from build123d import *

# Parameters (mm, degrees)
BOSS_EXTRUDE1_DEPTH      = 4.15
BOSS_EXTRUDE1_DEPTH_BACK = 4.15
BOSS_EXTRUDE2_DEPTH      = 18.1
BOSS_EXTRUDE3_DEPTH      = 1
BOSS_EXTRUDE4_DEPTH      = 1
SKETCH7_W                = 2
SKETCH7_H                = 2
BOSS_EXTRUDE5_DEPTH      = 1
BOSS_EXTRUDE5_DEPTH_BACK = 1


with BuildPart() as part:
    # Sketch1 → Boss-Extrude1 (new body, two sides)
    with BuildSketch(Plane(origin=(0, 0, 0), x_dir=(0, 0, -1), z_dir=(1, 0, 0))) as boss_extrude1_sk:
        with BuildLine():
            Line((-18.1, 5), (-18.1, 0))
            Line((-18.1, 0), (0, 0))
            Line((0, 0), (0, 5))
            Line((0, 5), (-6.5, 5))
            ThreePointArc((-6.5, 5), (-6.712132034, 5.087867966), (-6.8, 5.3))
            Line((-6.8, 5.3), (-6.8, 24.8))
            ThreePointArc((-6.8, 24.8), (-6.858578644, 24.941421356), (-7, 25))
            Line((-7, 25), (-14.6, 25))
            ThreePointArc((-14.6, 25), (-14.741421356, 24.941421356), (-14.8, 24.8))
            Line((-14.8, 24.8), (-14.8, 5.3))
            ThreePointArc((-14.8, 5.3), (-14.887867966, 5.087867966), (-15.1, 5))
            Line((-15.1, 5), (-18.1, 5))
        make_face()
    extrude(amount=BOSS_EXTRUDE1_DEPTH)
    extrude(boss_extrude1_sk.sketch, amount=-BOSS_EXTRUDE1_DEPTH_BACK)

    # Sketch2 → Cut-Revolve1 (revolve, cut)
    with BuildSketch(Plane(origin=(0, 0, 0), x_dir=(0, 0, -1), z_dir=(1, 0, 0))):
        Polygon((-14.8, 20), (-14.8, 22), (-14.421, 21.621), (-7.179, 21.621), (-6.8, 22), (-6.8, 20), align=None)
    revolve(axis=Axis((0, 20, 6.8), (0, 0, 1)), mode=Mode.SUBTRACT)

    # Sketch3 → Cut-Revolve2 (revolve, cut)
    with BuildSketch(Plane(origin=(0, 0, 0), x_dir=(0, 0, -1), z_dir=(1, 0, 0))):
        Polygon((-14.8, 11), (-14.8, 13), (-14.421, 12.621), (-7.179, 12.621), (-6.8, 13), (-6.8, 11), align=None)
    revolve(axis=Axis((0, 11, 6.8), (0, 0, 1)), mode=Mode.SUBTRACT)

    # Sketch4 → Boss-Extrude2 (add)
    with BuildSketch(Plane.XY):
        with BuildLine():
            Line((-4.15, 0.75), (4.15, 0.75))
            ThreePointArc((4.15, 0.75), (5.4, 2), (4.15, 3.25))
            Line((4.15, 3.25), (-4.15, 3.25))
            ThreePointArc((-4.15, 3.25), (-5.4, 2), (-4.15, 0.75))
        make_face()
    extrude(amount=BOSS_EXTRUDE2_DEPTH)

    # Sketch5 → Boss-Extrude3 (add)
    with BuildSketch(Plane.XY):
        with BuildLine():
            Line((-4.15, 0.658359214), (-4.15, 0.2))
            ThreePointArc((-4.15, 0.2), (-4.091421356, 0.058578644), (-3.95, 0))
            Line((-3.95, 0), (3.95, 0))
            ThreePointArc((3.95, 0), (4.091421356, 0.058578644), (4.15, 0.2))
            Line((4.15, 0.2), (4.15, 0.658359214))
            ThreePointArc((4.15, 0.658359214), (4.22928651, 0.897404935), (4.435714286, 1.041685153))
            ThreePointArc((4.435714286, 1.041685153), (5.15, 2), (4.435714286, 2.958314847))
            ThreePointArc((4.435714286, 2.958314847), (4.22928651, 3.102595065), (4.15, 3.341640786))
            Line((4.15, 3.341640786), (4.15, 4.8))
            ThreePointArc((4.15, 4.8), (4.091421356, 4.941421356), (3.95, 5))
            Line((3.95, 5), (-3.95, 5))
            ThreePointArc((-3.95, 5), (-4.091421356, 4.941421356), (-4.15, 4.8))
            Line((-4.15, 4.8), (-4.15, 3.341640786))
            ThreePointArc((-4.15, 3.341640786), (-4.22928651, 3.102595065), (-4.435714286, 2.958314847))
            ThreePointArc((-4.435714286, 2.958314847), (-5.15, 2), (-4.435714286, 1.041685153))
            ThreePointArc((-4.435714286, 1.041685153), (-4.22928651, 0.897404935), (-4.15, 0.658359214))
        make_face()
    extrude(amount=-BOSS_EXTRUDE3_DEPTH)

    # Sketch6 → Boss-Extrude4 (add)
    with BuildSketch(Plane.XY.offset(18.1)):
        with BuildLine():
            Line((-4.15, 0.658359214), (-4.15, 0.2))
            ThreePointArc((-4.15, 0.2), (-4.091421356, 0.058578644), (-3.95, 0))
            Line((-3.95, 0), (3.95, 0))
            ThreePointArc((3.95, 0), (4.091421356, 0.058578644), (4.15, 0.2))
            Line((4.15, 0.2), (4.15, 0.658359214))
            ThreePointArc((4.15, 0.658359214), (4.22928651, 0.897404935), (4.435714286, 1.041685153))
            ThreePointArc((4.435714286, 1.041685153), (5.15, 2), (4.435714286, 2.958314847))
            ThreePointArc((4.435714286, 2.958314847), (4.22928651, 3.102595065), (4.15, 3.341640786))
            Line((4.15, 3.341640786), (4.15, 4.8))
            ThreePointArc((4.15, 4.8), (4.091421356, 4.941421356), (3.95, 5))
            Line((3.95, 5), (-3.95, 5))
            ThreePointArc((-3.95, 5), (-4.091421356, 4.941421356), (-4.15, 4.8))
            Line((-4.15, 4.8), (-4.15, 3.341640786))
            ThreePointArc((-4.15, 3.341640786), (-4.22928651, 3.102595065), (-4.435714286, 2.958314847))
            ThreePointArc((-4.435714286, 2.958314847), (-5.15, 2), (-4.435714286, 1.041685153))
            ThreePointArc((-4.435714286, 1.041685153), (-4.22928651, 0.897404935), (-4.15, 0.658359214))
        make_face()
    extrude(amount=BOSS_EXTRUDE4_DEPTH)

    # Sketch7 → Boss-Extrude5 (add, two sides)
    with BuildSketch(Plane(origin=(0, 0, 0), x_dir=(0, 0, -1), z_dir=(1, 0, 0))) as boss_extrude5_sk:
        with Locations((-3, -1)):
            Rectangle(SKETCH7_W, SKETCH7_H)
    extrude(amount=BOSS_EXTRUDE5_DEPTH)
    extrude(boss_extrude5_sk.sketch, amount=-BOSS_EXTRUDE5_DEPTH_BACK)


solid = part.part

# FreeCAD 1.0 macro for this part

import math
import FreeCAD as App
import Part
import Sketcher


def add_polygon(sketch, points):
    """Adds a closed chain of lines whose ends are joined by coincident constraints."""
    first, n = sketch.GeometryCount, len(points)
    for a, b in zip(points, points[1:] + points[:1]):
        sketch.addGeometry(Part.LineSegment(App.Vector(*a, 0), App.Vector(*b, 0)), False)
    for i in range(n):
        sketch.addConstraint(Sketcher.Constraint("Coincident", first + i, 2, first + (i + 1) % n, 1))

doc = App.newDocument("Part")
params = doc.addObject("Spreadsheet::Sheet", "Params")
for row, (alias, value) in enumerate([
    ("sketch1_radius", "0.3 mm"),
    ("sketch1_radius2", "0.2 mm"),
    ("sketch1_width", "5 mm"),
    ("sketch1_height", "3 mm"),
    ("sketch1_width2", "19.5 mm"),
    ("pad1_length", "4.15 mm"),
    ("pad1_length2", "4.15 mm"),
    ("sketch2_width", "2 mm"),
    ("sketch2_height", "8 mm"),
    ("groove_angle", "360 deg"),
    ("sketch3_width", "2 mm"),
    ("sketch3_height", "8 mm"),
    ("groove2_angle", "360 deg"),
    ("sketch4_radius", "1.25 mm"),
    ("sketch4_width", "8.3 mm"),
    ("pad2_length", "18.1 mm"),
    ("sketch5_radius", "1 mm"),
    ("sketch5_radius2", "0.2 mm"),
    ("sketch5_radius3", "0.4 mm"),
    ("sketch5_width", "7.9 mm"),
    ("pad3_length", "1 mm"),
    ("sketch6_radius", "1 mm"),
    ("sketch6_radius2", "0.2 mm"),
    ("sketch6_radius3", "0.4 mm"),
    ("sketch6_width", "7.9 mm"),
    ("pad4_length", "1 mm"),
    ("sketch7_width", "2 mm"),
    ("pad5_length", "1 mm"),
    ("pad5_length2", "1 mm"),
], start=1):
    params.set(f"A{row}", alias)
    params.set(f"B{row}", "=" + value)
    params.setAlias(f"B{row}", alias)

body = doc.addObject("PartDesign::Body", "Body")

sketch1 = body.newObject("Sketcher::SketchObject", "Sketch")
sketch1.AttachmentSupport = (doc.getObject("YZ_Plane"), [""])
sketch1.MapMode = "FlatFace"
sketch1.addGeometry(Part.LineSegment(App.Vector(5, 18.1, 0), App.Vector(0, 18.1, 0)), False)
sketch1.addGeometry(Part.LineSegment(App.Vector(0, 18.1, 0), App.Vector(0, 0, 0)), False)
sketch1.addGeometry(Part.LineSegment(App.Vector(0, 0, 0), App.Vector(5, 0, 0)), False)
sketch1.addGeometry(Part.LineSegment(App.Vector(5, 0, 0), App.Vector(5, 6.5, 0)), False)
sketch1.addGeometry(Part.ArcOfCircle(Part.Circle(App.Vector(5.3, 6.5, 0), App.Vector(0, 0, 1), 0.3), math.radians(90), math.radians(180)), False)
sketch1.addGeometry(Part.LineSegment(App.Vector(5.3, 6.8, 0), App.Vector(24.8, 6.8, 0)), False)
sketch1.addGeometry(Part.ArcOfCircle(Part.Circle(App.Vector(24.8, 7, 0), App.Vector(0, 0, 1), 0.2), math.radians(-90), math.radians(0)), False)
sketch1.addGeometry(Part.LineSegment(App.Vector(25, 7, 0), App.Vector(25, 14.6, 0)), False)
sketch1.addGeometry(Part.ArcOfCircle(Part.Circle(App.Vector(24.8, 14.6, 0), App.Vector(0, 0, 1), 0.2), math.radians(0), math.radians(90)), False)
sketch1.addGeometry(Part.LineSegment(App.Vector(24.8, 14.8, 0), App.Vector(5.3, 14.8, 0)), False)
sketch1.addGeometry(Part.ArcOfCircle(Part.Circle(App.Vector(5.3, 15.1, 0), App.Vector(0, 0, 1), 0.3), math.radians(-180), math.radians(-90)), False)
sketch1.addGeometry(Part.LineSegment(App.Vector(5, 15.1, 0), App.Vector(5, 18.1, 0)), False)
sketch1.addConstraint(Sketcher.Constraint("Coincident", 0, 2, 1, 1))
sketch1.addConstraint(Sketcher.Constraint("Coincident", 1, 2, 2, 1))
sketch1.addConstraint(Sketcher.Constraint("Coincident", 2, 2, 3, 1))
sketch1.addConstraint(Sketcher.Constraint("Tangent", 3, 2, 4, 2))
sketch1.addConstraint(Sketcher.Constraint("Tangent", 4, 1, 5, 1))
sketch1.addConstraint(Sketcher.Constraint("Tangent", 5, 2, 6, 1))
sketch1.addConstraint(Sketcher.Constraint("Tangent", 6, 2, 7, 1))
sketch1.addConstraint(Sketcher.Constraint("Tangent", 7, 2, 8, 1))
sketch1.addConstraint(Sketcher.Constraint("Tangent", 8, 2, 9, 1))
sketch1.addConstraint(Sketcher.Constraint("Tangent", 9, 2, 10, 2))
sketch1.addConstraint(Sketcher.Constraint("Tangent", 10, 1, 11, 1))
sketch1.addConstraint(Sketcher.Constraint("Coincident", 11, 2, 0, 1))
sketch1.addConstraint(Sketcher.Constraint("Horizontal", 0))
sketch1.addConstraint(Sketcher.Constraint("Vertical", 1))
sketch1.addConstraint(Sketcher.Constraint("Horizontal", 2))
sketch1.addConstraint(Sketcher.Constraint("Vertical", 3))
sketch1.addConstraint(Sketcher.Constraint("Horizontal", 5))
sketch1.addConstraint(Sketcher.Constraint("Vertical", 7))
sketch1.addConstraint(Sketcher.Constraint("Horizontal", 9))
sketch1.addConstraint(Sketcher.Constraint("Vertical", 11))
sketch1.addConstraint(Sketcher.Constraint("Coincident", 1, 2, -1, 1))
sketch1.addConstraint(Sketcher.Constraint("Equal", 6, 8))
sketch1.addConstraint(Sketcher.Constraint("Equal", 4, 10))
sketch1.addConstraint(Sketcher.Constraint("Vertical", 4, 3, 10, 3))
sketch1.addConstraint(Sketcher.Constraint("Radius", 4, 0.3))
sketch1.addConstraint(Sketcher.Constraint("Radius", 6, 0.2))
sketch1.addConstraint(Sketcher.Constraint("DistanceX", 0, 2, 0, 1, 5.0))
sketch1.addConstraint(Sketcher.Constraint("DistanceY", 11, 1, 11, 2, 3.0))
sketch1.addConstraint(Sketcher.Constraint("DistanceX", 5, 1, 5, 2, 19.5))
sketch1.addConstraint(Sketcher.Constraint("DistanceY", 1, 2, 1, 1, 18.1))
sketch1.addConstraint(Sketcher.Constraint("DistanceY", 3, 1, 3, 2, 6.5))
sketch1.setExpression("Constraints[24]", "Params.sketch1_radius")
sketch1.setExpression("Constraints[25]", "Params.sketch1_radius2")
sketch1.setExpression("Constraints[26]", "Params.sketch1_width")
sketch1.setExpression("Constraints[27]", "Params.sketch1_height")
sketch1.setExpression("Constraints[28]", "Params.sketch1_width2")
pad1 = body.newObject("PartDesign::Pad", "Pad")
pad1.Profile = sketch1
pad1.Type = "TwoLengths"
pad1.setExpression("Length", "Params.pad1_length")
pad1.setExpression("Length2", "Params.pad1_length2")

sketch2 = body.newObject("Sketcher::SketchObject", "Sketch001")
sketch2.AttachmentSupport = (doc.getObject("YZ_Plane"), [""])
sketch2.MapMode = "FlatFace"
add_polygon(sketch2, [(22, 14.8), (20, 14.8), (20, 6.8), (22, 6.8), (21.621, 7.179), (21.621, 14.421)])
sketch2.addGeometry(Part.LineSegment(App.Vector(20, 6.8, 0), App.Vector(20, 14.8, 0)), True)
sketch2.addConstraint(Sketcher.Constraint("Horizontal", 0))
sketch2.addConstraint(Sketcher.Constraint("Vertical", 1))
sketch2.addConstraint(Sketcher.Constraint("Horizontal", 2))
sketch2.addConstraint(Sketcher.Constraint("Vertical", 4))
sketch2.addConstraint(Sketcher.Constraint("Vertical", 6))
sketch2.addConstraint(Sketcher.Constraint("Coincident", 6, 1, 1, 2))
sketch2.addConstraint(Sketcher.Constraint("Perpendicular", 3, 5))
sketch2.addConstraint(Sketcher.Constraint("Horizontal", 5, 2, 6, 2))
sketch2.addConstraint(Sketcher.Constraint("Vertical", 2, 2, 5, 2))
sketch2.addConstraint(Sketcher.Constraint("Equal", 3, 5))
sketch2.addConstraint(Sketcher.Constraint("DistanceX", 0, 2, 0, 1, 2.0))
sketch2.addConstraint(Sketcher.Constraint("DistanceY", 1, 2, 1, 1, 8.0))
sketch2.addConstraint(Sketcher.Constraint("DistanceX", -1, 1, 0, 2, 20.0))
sketch2.addConstraint(Sketcher.Constraint("DistanceY", -1, 1, 0, 2, 14.8))
sketch2.addConstraint(Sketcher.Constraint("DistanceY", 4, 1, 4, 2, 7.242))
sketch2.setExpression("Constraints[16]", "Params.sketch2_width")
sketch2.setExpression("Constraints[17]", "Params.sketch2_height")
groove = body.newObject("PartDesign::Groove", "Groove")
groove.Profile = sketch2
groove.ReferenceAxis = (sketch2, ["Axis0"])
groove.setExpression("Angle", "Params.groove_angle")

sketch3 = body.newObject("Sketcher::SketchObject", "Sketch002")
sketch3.AttachmentSupport = (doc.getObject("YZ_Plane"), [""])
sketch3.MapMode = "FlatFace"
add_polygon(sketch3, [(13, 14.8), (11, 14.8), (11, 6.8), (13, 6.8), (12.621, 7.179), (12.621, 14.421)])
sketch3.addGeometry(Part.LineSegment(App.Vector(11, 6.8, 0), App.Vector(11, 14.8, 0)), True)
sketch3.addConstraint(Sketcher.Constraint("Horizontal", 0))
sketch3.addConstraint(Sketcher.Constraint("Vertical", 1))
sketch3.addConstraint(Sketcher.Constraint("Horizontal", 2))
sketch3.addConstraint(Sketcher.Constraint("Vertical", 4))
sketch3.addConstraint(Sketcher.Constraint("Vertical", 6))
sketch3.addConstraint(Sketcher.Constraint("Coincident", 6, 1, 1, 2))
sketch3.addConstraint(Sketcher.Constraint("Perpendicular", 3, 5))
sketch3.addConstraint(Sketcher.Constraint("Horizontal", 5, 2, 6, 2))
sketch3.addConstraint(Sketcher.Constraint("Vertical", 2, 2, 5, 2))
sketch3.addConstraint(Sketcher.Constraint("Equal", 3, 5))
sketch3.addConstraint(Sketcher.Constraint("DistanceX", 0, 2, 0, 1, 2.0))
sketch3.addConstraint(Sketcher.Constraint("DistanceY", 1, 2, 1, 1, 8.0))
sketch3.addConstraint(Sketcher.Constraint("DistanceX", -1, 1, 0, 2, 11.0))
sketch3.addConstraint(Sketcher.Constraint("DistanceY", -1, 1, 0, 2, 14.8))
sketch3.addConstraint(Sketcher.Constraint("DistanceY", 4, 1, 4, 2, 7.242))
sketch3.setExpression("Constraints[16]", "Params.sketch3_width")
sketch3.setExpression("Constraints[17]", "Params.sketch3_height")
groove2 = body.newObject("PartDesign::Groove", "Groove001")
groove2.Profile = sketch3
groove2.ReferenceAxis = (sketch3, ["Axis0"])
groove2.setExpression("Angle", "Params.groove2_angle")

sketch4 = body.newObject("Sketcher::SketchObject", "Sketch003")
sketch4.AttachmentSupport = (doc.getObject("XY_Plane"), [""])
sketch4.MapMode = "FlatFace"
sketch4.addGeometry(Part.LineSegment(App.Vector(-4.15, 0.75, 0), App.Vector(4.15, 0.75, 0)), False)
sketch4.addGeometry(Part.ArcOfCircle(Part.Circle(App.Vector(4.15, 2, 0), App.Vector(0, 0, 1), 1.25), math.radians(-90), math.radians(90)), False)
sketch4.addGeometry(Part.LineSegment(App.Vector(4.15, 3.25, 0), App.Vector(-4.15, 3.25, 0)), False)
sketch4.addGeometry(Part.ArcOfCircle(Part.Circle(App.Vector(-4.15, 2, 0), App.Vector(0, 0, 1), 1.25), math.radians(90), math.radians(270)), False)
sketch4.addConstraint(Sketcher.Constraint("Tangent", 0, 2, 1, 1))
sketch4.addConstraint(Sketcher.Constraint("Tangent", 1, 2, 2, 1))
sketch4.addConstraint(Sketcher.Constraint("Tangent", 2, 2, 3, 1))
sketch4.addConstraint(Sketcher.Constraint("Tangent", 3, 2, 0, 1))
sketch4.addConstraint(Sketcher.Constraint("Horizontal", 0))
sketch4.addConstraint(Sketcher.Constraint("Horizontal", 2))
sketch4.addConstraint(Sketcher.Constraint("Radius", 1, 1.25))
sketch4.addConstraint(Sketcher.Constraint("DistanceX", 0, 1, 0, 2, 8.3))
sketch4.addConstraint(Sketcher.Constraint("DistanceY", -1, 1, 1, 3, 2.0))
sketch4.addConstraint(Sketcher.Constraint("DistanceX", -1, 1, 1, 3, 4.15))
sketch4.setExpression("Constraints[6]", "Params.sketch4_radius")
sketch4.setExpression("Constraints[7]", "Params.sketch4_width")
pad2 = body.newObject("PartDesign::Pad", "Pad001")
pad2.Profile = sketch4
pad2.setExpression("Length", "Params.pad2_length")

sketch5 = body.newObject("Sketcher::SketchObject", "Sketch004")
sketch5.AttachmentSupport = (doc.getObject("XY_Plane"), [""])
sketch5.MapMode = "FlatFace"
sketch5.addGeometry(Part.LineSegment(App.Vector(-4.15, 0.658359, 0), App.Vector(-4.15, 0.2, 0)), False)
sketch5.addGeometry(Part.ArcOfCircle(Part.Circle(App.Vector(-3.95, 0.2, 0), App.Vector(0, 0, 1), 0.2), math.radians(-180), math.radians(-90)), False)
sketch5.addGeometry(Part.LineSegment(App.Vector(-3.95, 0, 0), App.Vector(3.95, 0, 0)), False)
sketch5.addGeometry(Part.ArcOfCircle(Part.Circle(App.Vector(3.95, 0.2, 0), App.Vector(0, 0, 1), 0.2), math.radians(-90), math.radians(0)), False)
sketch5.addGeometry(Part.LineSegment(App.Vector(4.15, 0.2, 0), App.Vector(4.15, 0.658359, 0)), False)
sketch5.addGeometry(Part.ArcOfCircle(Part.Circle(App.Vector(4.55, 0.658359, 0), App.Vector(0, 0, 1), 0.4), math.radians(106.60155), math.radians(180)), False)
sketch5.addGeometry(Part.ArcOfCircle(Part.Circle(App.Vector(4.15, 2, 0), App.Vector(0, 0, 1), 1), math.radians(-73.39845), math.radians(73.39845)), False)
sketch5.addGeometry(Part.ArcOfCircle(Part.Circle(App.Vector(4.55, 3.341641, 0), App.Vector(0, 0, 1), 0.4), math.radians(-180), math.radians(-106.60155)), False)
sketch5.addGeometry(Part.LineSegment(App.Vector(4.15, 3.341641, 0), App.Vector(4.15, 4.8, 0)), False)
sketch5.addGeometry(Part.ArcOfCircle(Part.Circle(App.Vector(3.95, 4.8, 0), App.Vector(0, 0, 1), 0.2), math.radians(0), math.radians(90)), False)
sketch5.addGeometry(Part.LineSegment(App.Vector(3.95, 5, 0), App.Vector(-3.95, 5, 0)), False)
sketch5.addGeometry(Part.ArcOfCircle(Part.Circle(App.Vector(-3.95, 4.8, 0), App.Vector(0, 0, 1), 0.2), math.radians(90), math.radians(180)), False)
sketch5.addGeometry(Part.LineSegment(App.Vector(-4.15, 4.8, 0), App.Vector(-4.15, 3.341641, 0)), False)
sketch5.addGeometry(Part.ArcOfCircle(Part.Circle(App.Vector(-4.55, 3.341641, 0), App.Vector(0, 0, 1), 0.4), math.radians(-73.39845), math.radians(0)), False)
sketch5.addGeometry(Part.ArcOfCircle(Part.Circle(App.Vector(-4.15, 2, 0), App.Vector(0, 0, 1), 1), math.radians(106.60155), math.radians(253.39845)), False)
sketch5.addGeometry(Part.ArcOfCircle(Part.Circle(App.Vector(-4.55, 0.658359, 0), App.Vector(0, 0, 1), 0.4), math.radians(0), math.radians(73.39845)), False)
sketch5.addConstraint(Sketcher.Constraint("Tangent", 0, 2, 1, 1))
sketch5.addConstraint(Sketcher.Constraint("Tangent", 1, 2, 2, 1))
sketch5.addConstraint(Sketcher.Constraint("Tangent", 2, 2, 3, 1))
sketch5.addConstraint(Sketcher.Constraint("Tangent", 3, 2, 4, 1))
sketch5.addConstraint(Sketcher.Constraint("Tangent", 4, 2, 5, 2))
sketch5.addConstraint(Sketcher.Constraint("Tangent", 5, 1, 6, 1))
sketch5.addConstraint(Sketcher.Constraint("Tangent", 6, 2, 7, 2))
sketch5.addConstraint(Sketcher.Constraint("Tangent", 7, 1, 8, 1))
sketch5.addConstraint(Sketcher.Constraint("Tangent", 8, 2, 9, 1))
sketch5.addConstraint(Sketcher.Constraint("Tangent", 9, 2, 10, 1))
sketch5.addConstraint(Sketcher.Constraint("Tangent", 10, 2, 11, 1))
sketch5.addConstraint(Sketcher.Constraint("Tangent", 11, 2, 12, 1))
sketch5.addConstraint(Sketcher.Constraint("Tangent", 12, 2, 13, 2))
sketch5.addConstraint(Sketcher.Constraint("Tangent", 13, 1, 14, 1))
sketch5.addConstraint(Sketcher.Constraint("Tangent", 14, 2, 15, 2))
sketch5.addConstraint(Sketcher.Constraint("Tangent", 15, 1, 0, 1))
sketch5.addConstraint(Sketcher.Constraint("Vertical", 0))
sketch5.addConstraint(Sketcher.Constraint("Horizontal", 2))
sketch5.addConstraint(Sketcher.Constraint("Vertical", 4))
sketch5.addConstraint(Sketcher.Constraint("Vertical", 8))
sketch5.addConstraint(Sketcher.Constraint("Horizontal", 10))
sketch5.addConstraint(Sketcher.Constraint("Vertical", 12))
sketch5.addConstraint(Sketcher.Constraint("Equal", 1, 3))
sketch5.addConstraint(Sketcher.Constraint("Equal", 5, 7))
sketch5.addConstraint(Sketcher.Constraint("Equal", 3, 9))
sketch5.addConstraint(Sketcher.Constraint("Equal", 9, 11))
sketch5.addConstraint(Sketcher.Constraint("Equal", 7, 13))
sketch5.addConstraint(Sketcher.Constraint("Equal", 6, 14))
sketch5.addConstraint(Sketcher.Constraint("Equal", 13, 15))
sketch5.addConstraint(Sketcher.Constraint("Symmetric", 1, 2, 2, 2, -1, 1))
sketch5.addConstraint(Sketcher.Constraint("Symmetric", 7, 3, 13, 3, -2))
sketch5.addConstraint(Sketcher.Constraint("Horizontal", 6, 3, 14, 3))
sketch5.addConstraint(Sketcher.Constraint("Vertical", 5, 3, 7, 3))
sketch5.addConstraint(Sketcher.Constraint("Vertical", 14, 3, 0, 2))
sketch5.addConstraint(Sketcher.Constraint("Radius", 6, 1.0))
sketch5.addConstraint(Sketcher.Constraint("Radius", 1, 0.2))
sketch5.addConstraint(Sketcher.Constraint("Radius", 5, 0.4))
sketch5.addConstraint(Sketcher.Constraint("DistanceX", 2, 1, 2, 2, 7.9))
sketch5.addConstraint(Sketcher.Constraint("DistanceY", -1, 1, 6, 3, 2.0))
sketch5.addConstraint(Sketcher.Constraint("DistanceY", -1, 1, 9, 2, 5.0))
sketch5.setExpression("Constraints[34]", "Params.sketch5_radius")
sketch5.setExpression("Constraints[35]", "Params.sketch5_radius2")
sketch5.setExpression("Constraints[36]", "Params.sketch5_radius3")
sketch5.setExpression("Constraints[37]", "Params.sketch5_width")
pad3 = body.newObject("PartDesign::Pad", "Pad002")
pad3.Profile = sketch5
pad3.setExpression("Length", "Params.pad3_length")
pad3.Reversed = True

sketch6 = body.newObject("Sketcher::SketchObject", "Sketch005")
sketch6.AttachmentSupport = (doc.getObject("XY_Plane"), [""])
sketch6.MapMode = "FlatFace"
sketch6.AttachmentOffset = App.Placement(App.Vector(0, 0, 18.1), App.Rotation())
sketch6.addGeometry(Part.LineSegment(App.Vector(-4.15, 0.658359, 0), App.Vector(-4.15, 0.2, 0)), False)
sketch6.addGeometry(Part.ArcOfCircle(Part.Circle(App.Vector(-3.95, 0.2, 0), App.Vector(0, 0, 1), 0.2), math.radians(-180), math.radians(-90)), False)
sketch6.addGeometry(Part.LineSegment(App.Vector(-3.95, 0, 0), App.Vector(3.95, 0, 0)), False)
sketch6.addGeometry(Part.ArcOfCircle(Part.Circle(App.Vector(3.95, 0.2, 0), App.Vector(0, 0, 1), 0.2), math.radians(-90), math.radians(0)), False)
sketch6.addGeometry(Part.LineSegment(App.Vector(4.15, 0.2, 0), App.Vector(4.15, 0.658359, 0)), False)
sketch6.addGeometry(Part.ArcOfCircle(Part.Circle(App.Vector(4.55, 0.658359, 0), App.Vector(0, 0, 1), 0.4), math.radians(106.60155), math.radians(180)), False)
sketch6.addGeometry(Part.ArcOfCircle(Part.Circle(App.Vector(4.15, 2, 0), App.Vector(0, 0, 1), 1), math.radians(-73.39845), math.radians(73.39845)), False)
sketch6.addGeometry(Part.ArcOfCircle(Part.Circle(App.Vector(4.55, 3.341641, 0), App.Vector(0, 0, 1), 0.4), math.radians(-180), math.radians(-106.60155)), False)
sketch6.addGeometry(Part.LineSegment(App.Vector(4.15, 3.341641, 0), App.Vector(4.15, 4.8, 0)), False)
sketch6.addGeometry(Part.ArcOfCircle(Part.Circle(App.Vector(3.95, 4.8, 0), App.Vector(0, 0, 1), 0.2), math.radians(0), math.radians(90)), False)
sketch6.addGeometry(Part.LineSegment(App.Vector(3.95, 5, 0), App.Vector(-3.95, 5, 0)), False)
sketch6.addGeometry(Part.ArcOfCircle(Part.Circle(App.Vector(-3.95, 4.8, 0), App.Vector(0, 0, 1), 0.2), math.radians(90), math.radians(180)), False)
sketch6.addGeometry(Part.LineSegment(App.Vector(-4.15, 4.8, 0), App.Vector(-4.15, 3.341641, 0)), False)
sketch6.addGeometry(Part.ArcOfCircle(Part.Circle(App.Vector(-4.55, 3.341641, 0), App.Vector(0, 0, 1), 0.4), math.radians(-73.39845), math.radians(0)), False)
sketch6.addGeometry(Part.ArcOfCircle(Part.Circle(App.Vector(-4.15, 2, 0), App.Vector(0, 0, 1), 1), math.radians(106.60155), math.radians(253.39845)), False)
sketch6.addGeometry(Part.ArcOfCircle(Part.Circle(App.Vector(-4.55, 0.658359, 0), App.Vector(0, 0, 1), 0.4), math.radians(0), math.radians(73.39845)), False)
sketch6.addConstraint(Sketcher.Constraint("Tangent", 0, 2, 1, 1))
sketch6.addConstraint(Sketcher.Constraint("Tangent", 1, 2, 2, 1))
sketch6.addConstraint(Sketcher.Constraint("Tangent", 2, 2, 3, 1))
sketch6.addConstraint(Sketcher.Constraint("Tangent", 3, 2, 4, 1))
sketch6.addConstraint(Sketcher.Constraint("Tangent", 4, 2, 5, 2))
sketch6.addConstraint(Sketcher.Constraint("Tangent", 5, 1, 6, 1))
sketch6.addConstraint(Sketcher.Constraint("Tangent", 6, 2, 7, 2))
sketch6.addConstraint(Sketcher.Constraint("Tangent", 7, 1, 8, 1))
sketch6.addConstraint(Sketcher.Constraint("Tangent", 8, 2, 9, 1))
sketch6.addConstraint(Sketcher.Constraint("Tangent", 9, 2, 10, 1))
sketch6.addConstraint(Sketcher.Constraint("Tangent", 10, 2, 11, 1))
sketch6.addConstraint(Sketcher.Constraint("Tangent", 11, 2, 12, 1))
sketch6.addConstraint(Sketcher.Constraint("Tangent", 12, 2, 13, 2))
sketch6.addConstraint(Sketcher.Constraint("Tangent", 13, 1, 14, 1))
sketch6.addConstraint(Sketcher.Constraint("Tangent", 14, 2, 15, 2))
sketch6.addConstraint(Sketcher.Constraint("Tangent", 15, 1, 0, 1))
sketch6.addConstraint(Sketcher.Constraint("Vertical", 0))
sketch6.addConstraint(Sketcher.Constraint("Horizontal", 2))
sketch6.addConstraint(Sketcher.Constraint("Vertical", 4))
sketch6.addConstraint(Sketcher.Constraint("Vertical", 8))
sketch6.addConstraint(Sketcher.Constraint("Horizontal", 10))
sketch6.addConstraint(Sketcher.Constraint("Vertical", 12))
sketch6.addConstraint(Sketcher.Constraint("Equal", 1, 3))
sketch6.addConstraint(Sketcher.Constraint("Equal", 5, 7))
sketch6.addConstraint(Sketcher.Constraint("Equal", 3, 9))
sketch6.addConstraint(Sketcher.Constraint("Equal", 9, 11))
sketch6.addConstraint(Sketcher.Constraint("Equal", 7, 13))
sketch6.addConstraint(Sketcher.Constraint("Equal", 6, 14))
sketch6.addConstraint(Sketcher.Constraint("Equal", 13, 15))
sketch6.addConstraint(Sketcher.Constraint("Symmetric", 1, 2, 2, 2, -1, 1))
sketch6.addConstraint(Sketcher.Constraint("Symmetric", 7, 3, 13, 3, -2))
sketch6.addConstraint(Sketcher.Constraint("Horizontal", 6, 3, 14, 3))
sketch6.addConstraint(Sketcher.Constraint("Vertical", 5, 3, 7, 3))
sketch6.addConstraint(Sketcher.Constraint("Vertical", 14, 3, 0, 2))
sketch6.addConstraint(Sketcher.Constraint("Radius", 6, 1.0))
sketch6.addConstraint(Sketcher.Constraint("Radius", 1, 0.2))
sketch6.addConstraint(Sketcher.Constraint("Radius", 5, 0.4))
sketch6.addConstraint(Sketcher.Constraint("DistanceX", 2, 1, 2, 2, 7.9))
sketch6.addConstraint(Sketcher.Constraint("DistanceY", -1, 1, 6, 3, 2.0))
sketch6.addConstraint(Sketcher.Constraint("DistanceY", -1, 1, 9, 2, 5.0))
sketch6.setExpression("Constraints[34]", "Params.sketch6_radius")
sketch6.setExpression("Constraints[35]", "Params.sketch6_radius2")
sketch6.setExpression("Constraints[36]", "Params.sketch6_radius3")
sketch6.setExpression("Constraints[37]", "Params.sketch6_width")
pad4 = body.newObject("PartDesign::Pad", "Pad003")
pad4.Profile = sketch6
pad4.setExpression("Length", "Params.pad4_length")

sketch7 = body.newObject("Sketcher::SketchObject", "Sketch006")
sketch7.AttachmentSupport = (doc.getObject("YZ_Plane"), [""])
sketch7.MapMode = "FlatFace"
add_polygon(sketch7, [(0, 4), (-2, 4), (-2, 2), (0, 2)])
sketch7.addConstraint(Sketcher.Constraint("Horizontal", 0))
sketch7.addConstraint(Sketcher.Constraint("Vertical", 1))
sketch7.addConstraint(Sketcher.Constraint("Horizontal", 2))
sketch7.addConstraint(Sketcher.Constraint("Vertical", 3))
sketch7.addConstraint(Sketcher.Constraint("PointOnObject", 2, 2, -2))
sketch7.addConstraint(Sketcher.Constraint("Equal", 2, 1))
sketch7.addConstraint(Sketcher.Constraint("DistanceX", 0, 2, 0, 1, 2.0))
sketch7.addConstraint(Sketcher.Constraint("DistanceY", -1, 1, 0, 2, 4.0))
sketch7.setExpression("Constraints[10]", "Params.sketch7_width")
pad5 = body.newObject("PartDesign::Pad", "Pad004")
pad5.Profile = sketch7
pad5.Type = "TwoLengths"
pad5.setExpression("Length", "Params.pad5_length")
pad5.setExpression("Length2", "Params.pad5_length2")

doc.recompute()
